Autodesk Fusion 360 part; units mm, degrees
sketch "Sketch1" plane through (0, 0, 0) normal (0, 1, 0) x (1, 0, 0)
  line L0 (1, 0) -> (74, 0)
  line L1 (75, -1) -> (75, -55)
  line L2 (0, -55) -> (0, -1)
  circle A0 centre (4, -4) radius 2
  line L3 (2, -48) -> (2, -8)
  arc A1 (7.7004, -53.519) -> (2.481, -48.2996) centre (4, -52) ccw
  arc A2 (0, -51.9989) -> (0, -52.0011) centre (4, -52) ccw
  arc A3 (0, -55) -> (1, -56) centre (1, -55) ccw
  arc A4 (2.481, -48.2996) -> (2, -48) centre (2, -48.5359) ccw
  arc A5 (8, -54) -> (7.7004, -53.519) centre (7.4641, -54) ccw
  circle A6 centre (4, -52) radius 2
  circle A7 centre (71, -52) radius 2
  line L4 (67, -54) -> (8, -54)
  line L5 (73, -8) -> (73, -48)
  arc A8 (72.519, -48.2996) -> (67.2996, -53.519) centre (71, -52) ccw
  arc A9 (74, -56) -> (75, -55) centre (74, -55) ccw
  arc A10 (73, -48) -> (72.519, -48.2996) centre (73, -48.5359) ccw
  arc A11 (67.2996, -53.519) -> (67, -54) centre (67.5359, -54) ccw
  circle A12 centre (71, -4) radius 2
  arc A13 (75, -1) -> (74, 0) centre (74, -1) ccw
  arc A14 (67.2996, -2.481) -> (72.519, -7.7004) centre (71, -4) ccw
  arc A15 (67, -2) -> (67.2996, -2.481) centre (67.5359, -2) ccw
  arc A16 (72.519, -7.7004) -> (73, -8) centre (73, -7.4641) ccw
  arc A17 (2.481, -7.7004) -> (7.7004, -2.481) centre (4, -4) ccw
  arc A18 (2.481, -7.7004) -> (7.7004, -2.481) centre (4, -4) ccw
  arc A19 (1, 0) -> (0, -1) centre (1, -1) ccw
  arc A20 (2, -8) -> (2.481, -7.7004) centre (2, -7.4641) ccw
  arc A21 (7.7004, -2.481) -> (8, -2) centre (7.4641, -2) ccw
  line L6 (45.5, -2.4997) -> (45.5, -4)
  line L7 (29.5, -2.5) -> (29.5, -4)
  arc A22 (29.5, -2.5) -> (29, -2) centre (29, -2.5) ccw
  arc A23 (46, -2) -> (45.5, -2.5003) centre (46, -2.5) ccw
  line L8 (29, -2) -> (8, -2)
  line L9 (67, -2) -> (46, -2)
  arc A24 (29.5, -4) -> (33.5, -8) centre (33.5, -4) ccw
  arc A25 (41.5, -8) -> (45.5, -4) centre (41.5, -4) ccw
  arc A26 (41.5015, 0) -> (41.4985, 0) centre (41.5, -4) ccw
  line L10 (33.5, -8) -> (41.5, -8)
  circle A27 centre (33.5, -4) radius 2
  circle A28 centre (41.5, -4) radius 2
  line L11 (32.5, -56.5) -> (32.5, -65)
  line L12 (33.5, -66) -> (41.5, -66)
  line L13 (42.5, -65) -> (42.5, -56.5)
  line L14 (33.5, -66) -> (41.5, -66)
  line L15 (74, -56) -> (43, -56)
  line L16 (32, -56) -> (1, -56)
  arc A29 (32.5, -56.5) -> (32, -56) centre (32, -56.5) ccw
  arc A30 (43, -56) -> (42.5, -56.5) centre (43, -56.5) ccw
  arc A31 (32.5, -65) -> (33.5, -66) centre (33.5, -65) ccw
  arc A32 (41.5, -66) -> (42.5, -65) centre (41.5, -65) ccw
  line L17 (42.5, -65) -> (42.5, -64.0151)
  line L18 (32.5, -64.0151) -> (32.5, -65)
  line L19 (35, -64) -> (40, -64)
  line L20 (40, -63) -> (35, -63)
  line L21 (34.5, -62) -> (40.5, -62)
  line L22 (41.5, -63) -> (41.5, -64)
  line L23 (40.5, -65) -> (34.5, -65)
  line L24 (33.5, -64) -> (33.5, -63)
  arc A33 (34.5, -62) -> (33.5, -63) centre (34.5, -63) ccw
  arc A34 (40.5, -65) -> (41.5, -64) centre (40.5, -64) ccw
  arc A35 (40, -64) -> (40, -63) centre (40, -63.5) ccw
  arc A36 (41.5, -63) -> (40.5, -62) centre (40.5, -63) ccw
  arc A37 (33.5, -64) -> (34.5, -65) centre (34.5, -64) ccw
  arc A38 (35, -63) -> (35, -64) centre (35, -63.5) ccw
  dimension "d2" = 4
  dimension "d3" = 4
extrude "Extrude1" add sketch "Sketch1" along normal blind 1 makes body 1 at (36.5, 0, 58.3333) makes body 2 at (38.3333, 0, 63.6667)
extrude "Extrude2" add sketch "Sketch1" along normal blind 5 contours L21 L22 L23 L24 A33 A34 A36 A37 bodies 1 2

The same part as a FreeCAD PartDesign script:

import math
import FreeCAD as App
import Part
import Sketcher
from FreeCAD import Vector
Q = App.Units.Quantity

doc = App.newDocument("Part")
body = doc.addObject("PartDesign::Body", "Body")
body.AllowCompound = True

sketch1 = body.newObject("Sketcher::SketchObject", "Sketch")
sketch1.AttachmentSupport = (doc.getObject("XZ_Plane"), [""])
sketch1.MapMode = "FlatFace"
sketch1.addGeometry([
    Part.LineSegment(Vector(41.4985, 0, 0), Vector(1, 0, 0)),
    Part.ArcOfCircle(Part.Circle(Vector(1, 1, 0), Vector(0, 0, 1), 1), math.radians(180), math.radians(270)),
    Part.LineSegment(Vector(0, 1, 0), Vector(0, 51.9989, 0)),
    Part.ArcOfCircle(Part.Circle(Vector(4, 52, 0), Vector(0, 0, 1), 4), math.radians(179.984244), math.radians(180.015756)),
    Part.LineSegment(Vector(0, 52.0011, 0), Vector(0, 55, 0)),
    Part.ArcOfCircle(Part.Circle(Vector(1, 55, 0), Vector(0, 0, 1), 1), math.radians(90), math.radians(180)),
    Part.LineSegment(Vector(1, 56, 0), Vector(32, 56, 0)),
    Part.ArcOfCircle(Part.Circle(Vector(32, 56.5, 0), Vector(0, 0, 1), 0.5), math.radians(-90), math.radians(0)),
    Part.LineSegment(Vector(32.5, 56.5, 0), Vector(32.5, 65, 0)),
    Part.ArcOfCircle(Part.Circle(Vector(33.5, 65, 0), Vector(0, 0, 1), 1), math.radians(90), math.radians(180)),
    Part.LineSegment(Vector(33.5, 66, 0), Vector(41.5, 66, 0)),
    Part.ArcOfCircle(Part.Circle(Vector(41.5, 65, 0), Vector(0, 0, 1), 1), math.radians(0), math.radians(90)),
    Part.LineSegment(Vector(42.5, 65, 0), Vector(42.5, 56.5, 0)),
    Part.ArcOfCircle(Part.Circle(Vector(43, 56.5, 0), Vector(0, 0, 1), 0.5), math.radians(180), math.radians(270)),
    Part.LineSegment(Vector(43, 56, 0), Vector(74, 56, 0)),
    Part.ArcOfCircle(Part.Circle(Vector(74, 55, 0), Vector(0, 0, 1), 1), math.radians(0), math.radians(90)),
    Part.LineSegment(Vector(75, 55, 0), Vector(75, 1, 0)),
    Part.ArcOfCircle(Part.Circle(Vector(74, 1, 0), Vector(0, 0, 1), 1), math.radians(-90), math.radians(0)),
    Part.LineSegment(Vector(74, 0, 0), Vector(41.5015, 0, 0)),
    Part.ArcOfCircle(Part.Circle(Vector(41.5, 4, 0), Vector(0, 0, 1), 4), math.radians(-90.021486), math.radians(-89.978514)),
    Part.Circle(Vector(4, 52, 0), Vector(0, 0, 1), 2),
    Part.ArcOfCircle(Part.Circle(Vector(34.5, 63, 0), Vector(0, 0, 1), 1), math.radians(180), math.radians(270)),
    Part.LineSegment(Vector(34.5, 62, 0), Vector(40.5, 62, 0)),
    Part.ArcOfCircle(Part.Circle(Vector(40.5, 63, 0), Vector(0, 0, 1), 1), math.radians(-90), math.radians(0)),
    Part.LineSegment(Vector(41.5, 63, 0), Vector(41.5, 64, 0)),
    Part.ArcOfCircle(Part.Circle(Vector(40.5, 64, 0), Vector(0, 0, 1), 1), math.radians(0), math.radians(90)),
    Part.LineSegment(Vector(40.5, 65, 0), Vector(34.5, 65, 0)),
    Part.ArcOfCircle(Part.Circle(Vector(34.5, 64, 0), Vector(0, 0, 1), 1), math.radians(90), math.radians(180)),
    Part.LineSegment(Vector(33.5, 64, 0), Vector(33.5, 63, 0)),
    Part.Circle(Vector(71, 52, 0), Vector(0, 0, 1), 2),
    Part.Circle(Vector(4, 4, 0), Vector(0, 0, 1), 2),
    Part.Circle(Vector(33.5, 4, 0), Vector(0, 0, 1), 2),
    Part.ArcOfCircle(Part.Circle(Vector(2, 48.5359, 0), Vector(0, 0, 1), 0.535909), math.radians(-90), math.radians(-26.163418)),
    Part.LineSegment(Vector(2, 48, 0), Vector(2, 8, 0)),
    Part.ArcOfCircle(Part.Circle(Vector(2, 7.4641, 0), Vector(0, 0, 1), 0.5359), math.radians(26.163418), math.radians(90)),
    Part.ArcOfCircle(Part.Circle(Vector(4, 4, 0), Vector(0, 0, 1), 4.00004), math.radians(-22.317962), math.radians(112.317962)),
    Part.ArcOfCircle(Part.Circle(Vector(7.4641, 2, 0), Vector(0, 0, 1), 0.535909), math.radians(0), math.radians(63.836582)),
    Part.LineSegment(Vector(8, 2, 0), Vector(29, 2, 0)),
    Part.ArcOfCircle(Part.Circle(Vector(29, 2.5, 0), Vector(0, 0, 1), 0.5), math.radians(-90), math.radians(0)),
    Part.LineSegment(Vector(29.5, 2.5, 0), Vector(29.5, 4, 0)),
    Part.ArcOfCircle(Part.Circle(Vector(33.5, 4, 0), Vector(0, 0, 1), 4), math.radians(90), math.radians(180)),
    Part.LineSegment(Vector(33.5, 8, 0), Vector(41.5, 8, 0)),
    Part.ArcOfCircle(Part.Circle(Vector(41.5, 4, 0), Vector(0, 0, 1), 4), math.radians(0), math.radians(90)),
    Part.LineSegment(Vector(45.5, 4, 0), Vector(45.5, 2.4997, 0)),
    Part.ArcOfCircle(Part.Circle(Vector(46, 2.5, 0), Vector(0, 0, 1), 0.5), math.radians(-179.965623), math.radians(-90)),
    Part.LineSegment(Vector(46, 2, 0), Vector(67, 2, 0)),
    Part.ArcOfCircle(Part.Circle(Vector(67.5359, 2, 0), Vector(0, 0, 1), 0.5359), math.radians(116.163418), math.radians(180)),
    Part.ArcOfCircle(Part.Circle(Vector(71, 4, 0), Vector(0, 0, 1), 4.00004), math.radians(67.682038), math.radians(202.317962)),
    Part.ArcOfCircle(Part.Circle(Vector(73, 7.4641, 0), Vector(0, 0, 1), 0.535909), math.radians(90), math.radians(153.836582)),
    Part.LineSegment(Vector(73, 8, 0), Vector(73, 48, 0)),
    Part.ArcOfCircle(Part.Circle(Vector(73, 48.5359, 0), Vector(0, 0, 1), 0.5359), math.radians(-153.836582), math.radians(-90)),
    Part.ArcOfCircle(Part.Circle(Vector(71, 52, 0), Vector(0, 0, 1), 4.00004), math.radians(157.682038), math.radians(292.317962)),
    Part.ArcOfCircle(Part.Circle(Vector(67.5359, 54, 0), Vector(0, 0, 1), 0.535909), math.radians(180), math.radians(243.836582)),
    Part.LineSegment(Vector(67, 54, 0), Vector(8, 54, 0)),
    Part.ArcOfCircle(Part.Circle(Vector(7.4641, 54, 0), Vector(0, 0, 1), 0.5359), math.radians(-63.836582), math.radians(0)),
    Part.ArcOfCircle(Part.Circle(Vector(4, 52, 0), Vector(0, 0, 1), 4.00004), math.radians(-112.317962), math.radians(22.317962)),
    Part.Circle(Vector(41.5, 4, 0), Vector(0, 0, 1), 2),
    Part.Circle(Vector(71, 4, 0), Vector(0, 0, 1), 2),
    Part.ArcOfCircle(Part.Circle(Vector(35, 63.5, 0), Vector(0, 0, 1), 0.5), math.radians(90), math.radians(270)),
    Part.LineSegment(Vector(35, 64, 0), Vector(40, 64, 0)),
    Part.ArcOfCircle(Part.Circle(Vector(40, 63.5, 0), Vector(0, 0, 1), 0.5), math.radians(-90), math.radians(90)),
    Part.LineSegment(Vector(40, 63, 0), Vector(35, 63, 0)),
], False)
sketch1.addConstraint([
    Sketcher.Constraint("Coincident", 0, 2, 1, 2),
    Sketcher.Constraint("Coincident", 1, 1, 2, 1),
    Sketcher.Constraint("Coincident", 2, 2, 3, 2),
    Sketcher.Constraint("Coincident", 3, 1, 4, 1),
    Sketcher.Constraint("Coincident", 4, 2, 5, 2),
    Sketcher.Constraint("Coincident", 5, 1, 6, 1),
    Sketcher.Constraint("Coincident", 6, 2, 7, 1),
    Sketcher.Constraint("Coincident", 7, 2, 8, 1),
    Sketcher.Constraint("Coincident", 8, 2, 9, 2),
    Sketcher.Constraint("Coincident", 9, 1, 10, 1),
    Sketcher.Constraint("Coincident", 10, 2, 11, 2),
    Sketcher.Constraint("Coincident", 11, 1, 12, 1),
    Sketcher.Constraint("Coincident", 12, 2, 13, 1),
    Sketcher.Constraint("Coincident", 13, 2, 14, 1),
    Sketcher.Constraint("Coincident", 14, 2, 15, 2),
    Sketcher.Constraint("Coincident", 15, 1, 16, 1),
    Sketcher.Constraint("Coincident", 16, 2, 17, 2),
    Sketcher.Constraint("Coincident", 17, 1, 18, 1),
    Sketcher.Constraint("Coincident", 18, 2, 19, 2),
    Sketcher.Constraint("Coincident", 19, 1, 0, 1),
    Sketcher.Constraint("Coincident", 21, 2, 22, 1),
    Sketcher.Constraint("Coincident", 22, 2, 23, 1),
    Sketcher.Constraint("Coincident", 23, 2, 24, 1),
    Sketcher.Constraint("Coincident", 24, 2, 25, 1),
    Sketcher.Constraint("Coincident", 25, 2, 26, 1),
    Sketcher.Constraint("Coincident", 26, 2, 27, 1),
    Sketcher.Constraint("Coincident", 27, 2, 28, 1),
    Sketcher.Constraint("Coincident", 28, 2, 21, 1),
    Sketcher.Constraint("Coincident", 32, 1, 33, 1),
    Sketcher.Constraint("Coincident", 33, 2, 34, 2),
    Sketcher.Constraint("Coincident", 34, 1, 35, 2),
    Sketcher.Constraint("Coincident", 35, 1, 36, 2),
    Sketcher.Constraint("Coincident", 36, 1, 37, 1),
    Sketcher.Constraint("Coincident", 37, 2, 38, 1),
    Sketcher.Constraint("Coincident", 38, 2, 39, 1),
    Sketcher.Constraint("Coincident", 39, 2, 40, 2),
    Sketcher.Constraint("Coincident", 40, 1, 41, 1),
    Sketcher.Constraint("Coincident", 41, 2, 42, 2),
    Sketcher.Constraint("Coincident", 42, 1, 43, 1),
    Sketcher.Constraint("Coincident", 43, 2, 44, 1),
    Sketcher.Constraint("Coincident", 44, 2, 45, 1),
    Sketcher.Constraint("Coincident", 45, 2, 46, 2),
    Sketcher.Constraint("Coincident", 46, 1, 47, 2),
    Sketcher.Constraint("Coincident", 47, 1, 48, 2),
    Sketcher.Constraint("Coincident", 48, 1, 49, 1),
    Sketcher.Constraint("Coincident", 49, 2, 50, 2),
    Sketcher.Constraint("Coincident", 50, 1, 51, 2),
    Sketcher.Constraint("Coincident", 51, 1, 52, 2),
    Sketcher.Constraint("Coincident", 52, 1, 53, 1),
    Sketcher.Constraint("Coincident", 53, 2, 54, 2),
    Sketcher.Constraint("Coincident", 54, 1, 55, 2),
    Sketcher.Constraint("Coincident", 55, 1, 32, 2),
    Sketcher.Constraint("Coincident", 58, 1, 59, 1),
    Sketcher.Constraint("Coincident", 59, 2, 60, 2),
    Sketcher.Constraint("Coincident", 60, 1, 61, 1),
    Sketcher.Constraint("Coincident", 61, 2, 58, 2),
    Sketcher.Constraint("Horizontal", 0),
    Sketcher.Constraint("Vertical", 2),
    Sketcher.Constraint("Vertical", 4),
    Sketcher.Constraint("Horizontal", 6),
    Sketcher.Constraint("Vertical", 8),
    Sketcher.Constraint("Horizontal", 10),
    Sketcher.Constraint("Vertical", 12),
    Sketcher.Constraint("Horizontal", 14),
    Sketcher.Constraint("Vertical", 16),
    Sketcher.Constraint("Horizontal", 18),
    Sketcher.Constraint("Horizontal", 22),
    Sketcher.Constraint("Vertical", 24),
    Sketcher.Constraint("Horizontal", 26),
    Sketcher.Constraint("Vertical", 28),
    Sketcher.Constraint("Vertical", 33),
    Sketcher.Constraint("Horizontal", 37),
    Sketcher.Constraint("Vertical", 39),
    Sketcher.Constraint("Horizontal", 41),
    Sketcher.Constraint("Vertical", 43),
    Sketcher.Constraint("Horizontal", 45),
    Sketcher.Constraint("Vertical", 49),
    Sketcher.Constraint("Horizontal", 53),
    Sketcher.Constraint("Horizontal", 59),
    Sketcher.Constraint("Horizontal", 61),
    Sketcher.Constraint("Coincident", 20, 3, 3, 3),
    Sketcher.Constraint("Coincident", 35, 3, 30, 3),
    Sketcher.Constraint("Coincident", 40, 3, 31, 3),
    Sketcher.Constraint("Coincident", 42, 3, 19, 3),
    Sketcher.Constraint("Coincident", 51, 3, 29, 3),
    Sketcher.Constraint("Coincident", 55, 3, 3, 3),
    Sketcher.Constraint("Coincident", 56, 3, 19, 3),
    Sketcher.Constraint("Coincident", 57, 3, 47, 3),
    Sketcher.Constraint("PointOnObject", 0, 2, -1),
    Sketcher.Constraint("PointOnObject", 1, 1, -2),
    Sketcher.Constraint("Diameter", 20, Q("4 mm")),
    Sketcher.Constraint("Diameter", 29, Q("4 mm")),
    Sketcher.Constraint("Diameter", 30, Q("4 mm")),
    Sketcher.Constraint("Diameter", 31, Q("4 mm")),
    Sketcher.Constraint("Diameter", 56, Q("4 mm")),
    Sketcher.Constraint("Diameter", 57, Q("4 mm")),
    Sketcher.Constraint("Radius", 3, Q("4 mm")),
    Sketcher.Constraint("Radius", 19, Q("4 mm")),
    Sketcher.Constraint("Radius", 35, Q("4 mm")),
    Sketcher.Constraint("Radius", 40, Q("4 mm")),
    Sketcher.Constraint("Radius", 42, Q("4 mm")),
    Sketcher.Constraint("Radius", 47, Q("4 mm")),
    Sketcher.Constraint("Radius", 51, Q("4 mm")),
    Sketcher.Constraint("Radius", 55, Q("4 mm")),
    Sketcher.Constraint("DistanceX", -1, 1, 30, 3, Q("4 mm")),
    Sketcher.Constraint("DistanceY", -1, 1, 30, 3, Q("4 mm")),
    Sketcher.Constraint("DistanceY", -1, 1, 47, 3, Q("4 mm")),
    Sketcher.Constraint("DistanceY", -1, 1, 39, 2, Q("4 mm")),
    Sketcher.Constraint("DistanceY", -1, 1, 42, 1, Q("4 mm")),
    Sketcher.Constraint("Radius", 1, Q("1 mm")),
    Sketcher.Constraint("Radius", 5, Q("1 mm")),
    Sketcher.Constraint("Radius", 9, Q("1 mm")),
    Sketcher.Constraint("Radius", 11, Q("1 mm")),
    Sketcher.Constraint("Radius", 15, Q("1 mm")),
    Sketcher.Constraint("Radius", 17, Q("1 mm")),
    Sketcher.Constraint("Radius", 21, Q("1 mm")),
    Sketcher.Constraint("Radius", 23, Q("1 mm")),
    Sketcher.Constraint("Radius", 25, Q("1 mm")),
    Sketcher.Constraint("Radius", 27, Q("1 mm")),
    Sketcher.Constraint("Radius", 7, Q("0.5 mm")),
    Sketcher.Constraint("Radius", 13, Q("0.5 mm")),
    Sketcher.Constraint("Radius", 38, Q("0.5 mm")),
    Sketcher.Constraint("Radius", 44, Q("0.5 mm")),
    Sketcher.Constraint("Radius", 58, Q("0.5 mm")),
    Sketcher.Constraint("DistanceX", 6, 1, 6, 2, Q("31 mm")),
    Sketcher.Constraint("DistanceX", 10, 1, 10, 2, Q("8 mm")),
    Sketcher.Constraint("DistanceX", 14, 1, 14, 2, Q("31 mm")),
    Sketcher.Constraint("DistanceX", 22, 1, 22, 2, Q("6 mm")),
    Sketcher.Constraint("DistanceX", 26, 2, 26, 1, Q("6 mm")),
    Sketcher.Constraint("DistanceX", 37, 1, 37, 2, Q("21 mm")),
    Sketcher.Constraint("DistanceX", 41, 1, 41, 2, Q("8 mm")),
    Sketcher.Constraint("DistanceX", 45, 1, 45, 2, Q("21 mm")),
    Sketcher.Constraint("DistanceX", 53, 2, 53, 1, Q("59 mm")),
    Sketcher.Constraint("DistanceX", 59, 1, 59, 2, Q("5 mm")),
    Sketcher.Constraint("DistanceX", 61, 2, 61, 1, Q("5 mm")),
    Sketcher.Constraint("DistanceY", 16, 2, 16, 1, Q("54 mm")),
    Sketcher.Constraint("DistanceY", 24, 1, 24, 2, Q("1 mm")),
    Sketcher.Constraint("DistanceY", 28, 2, 28, 1, Q("1 mm")),
    Sketcher.Constraint("DistanceY", 33, 2, 33, 1, Q("40 mm")),
    Sketcher.Constraint("DistanceY", 49, 1, 49, 2, Q("40 mm")),
    Sketcher.Constraint("DistanceY", 8, 1, 8, 2, Q("8.5 mm")),
    Sketcher.Constraint("DistanceY", 12, 2, 12, 1, Q("8.5 mm")),
    Sketcher.Constraint("DistanceY", 39, 1, 39, 2, Q("1.5 mm")),
    Sketcher.Constraint("DistanceY", -1, 1, 3, 3, Q("52 mm")),
    Sketcher.Constraint("DistanceY", -1, 1, 5, 3, Q("55 mm")),
    Sketcher.Constraint("DistanceX", -1, 1, 7, 3, Q("32 mm")),
    Sketcher.Constraint("DistanceY", -1, 1, 9, 3, Q("65 mm")),
    Sketcher.Constraint("DistanceX", -1, 1, 13, 3, Q("43 mm")),
    Sketcher.Constraint("DistanceX", -1, 1, 15, 3, Q("74 mm")),
    Sketcher.Constraint("DistanceY", -1, 1, 15, 3, Q("55 mm")),
    Sketcher.Constraint("DistanceY", -1, 1, 21, 3, Q("63 mm")),
    Sketcher.Constraint("DistanceY", -1, 1, 25, 3, Q("64 mm")),
    Sketcher.Constraint("DistanceX", -1, 1, 29, 3, Q("71 mm")),
    Sketcher.Constraint("DistanceY", -1, 1, 29, 3, Q("52 mm")),
    Sketcher.Constraint("DistanceX", -1, 1, 32, 3, Q("2 mm")),
    Sketcher.Constraint("DistanceX", -1, 1, 34, 3, Q("2 mm")),
    Sketcher.Constraint("DistanceY", -1, 1, 36, 3, Q("2 mm")),
    Sketcher.Constraint("DistanceX", -1, 1, 38, 3, Q("29 mm")),
    Sketcher.Constraint("DistanceX", -1, 1, 44, 3, Q("46 mm")),
    Sketcher.Constraint("DistanceY", -1, 1, 46, 3, Q("2 mm")),
    Sketcher.Constraint("DistanceX", -1, 1, 47, 3, Q("71 mm")),
    Sketcher.Constraint("DistanceX", -1, 1, 48, 3, Q("73 mm")),
    Sketcher.Constraint("DistanceX", -1, 1, 50, 3, Q("73 mm")),
    Sketcher.Constraint("DistanceY", -1, 1, 52, 3, Q("54 mm")),
    Sketcher.Constraint("DistanceY", -1, 1, 54, 3, Q("54 mm")),
    Sketcher.Constraint("DistanceX", -1, 1, 58, 3, Q("35 mm")),
    Sketcher.Constraint("DistanceX", -1, 1, 60, 3, Q("40 mm")),
    Sketcher.Constraint("DistanceX", -1, 1, 0, 2, Q("1 mm")),
    Sketcher.Constraint("DistanceY", -1, 1, 1, 1, Q("1 mm")),
    Sketcher.Constraint("DistanceY", -1, 1, 4, 2, Q("55 mm")),
    Sketcher.Constraint("DistanceX", -1, 1, 5, 1, Q("1 mm")),
    Sketcher.Constraint("DistanceY", -1, 1, 8, 2, Q("65 mm")),
    Sketcher.Constraint("DistanceY", -1, 1, 11, 1, Q("65 mm")),
    Sketcher.Constraint("DistanceX", -1, 1, 13, 2, Q("43 mm")),
    Sketcher.Constraint("DistanceY", -1, 1, 15, 1, Q("55 mm")),
    Sketcher.Constraint("DistanceX", -1, 1, 17, 1, Q("74 mm")),
    Sketcher.Constraint("DistanceY", -1, 1, 23, 2, Q("63 mm")),
    Sketcher.Constraint("DistanceY", -1, 1, 27, 2, Q("64 mm")),
    Sketcher.Constraint("DistanceX", -1, 1, 32, 1, Q("2 mm")),
    Sketcher.Constraint("DistanceY", -1, 1, 32, 1, Q("48 mm")),
    Sketcher.Constraint("DistanceX", -1, 1, 36, 1, Q("8 mm")),
    Sketcher.Constraint("DistanceY", -1, 1, 36, 1, Q("2 mm")),
    Sketcher.Constraint("DistanceX", -1, 1, 44, 2, Q("46 mm")),
    Sketcher.Constraint("DistanceY", -1, 1, 44, 2, Q("2 mm")),
    Sketcher.Constraint("DistanceX", -1, 1, 48, 1, Q("73 mm")),
    Sketcher.Constraint("DistanceY", -1, 1, 48, 1, Q("8 mm")),
    Sketcher.Constraint("DistanceX", -1, 1, 52, 1, Q("67 mm")),
    Sketcher.Constraint("DistanceY", -1, 1, 52, 1, Q("54 mm")),
    Sketcher.Constraint("DistanceX", -1, 1, 58, 1, Q("35 mm")),
    Sketcher.Constraint("DistanceY", -1, 1, 58, 1, Q("64 mm")),
    Sketcher.Constraint("DistanceX", -1, 1, 60, 1, Q("40 mm")),
    Sketcher.Constraint("Radius", 32, Q("0.536 mm")),
    Sketcher.Constraint("Radius", 34, Q("0.536 mm")),
    Sketcher.Constraint("Radius", 36, Q("0.536 mm")),
    Sketcher.Constraint("Radius", 46, Q("0.536 mm")),
    Sketcher.Constraint("Radius", 48, Q("0.536 mm")),
    Sketcher.Constraint("Radius", 50, Q("0.536 mm")),
    Sketcher.Constraint("Radius", 52, Q("0.536 mm")),
    Sketcher.Constraint("Radius", 54, Q("0.536 mm")),
    Sketcher.Constraint("DistanceX", -1, 1, 21, 3, Q("34.5 mm")),
    Sketcher.Constraint("DistanceX", -1, 1, 23, 3, Q("40.5 mm")),
    Sketcher.Constraint("DistanceX", -1, 1, 9, 1, Q("33.5 mm")),
    Sketcher.Constraint("DistanceX", -1, 1, 21, 2, Q("34.5 mm")),
    Sketcher.Constraint("DistanceX", -1, 1, 25, 2, Q("40.5 mm")),
    Sketcher.Constraint("DistanceX", -1, 1, 40, 1, Q("33.5 mm")),
    Sketcher.Constraint("DistanceY", 2, 1, 2, 2, Q("50.999 mm")),
    Sketcher.Constraint("DistanceY", 4, 1, 4, 2, Q("2.999 mm")),
    Sketcher.Constraint("DistanceX", 0, 2, 0, 1, Q("40.4985 mm")),
    Sketcher.Constraint("DistanceX", 18, 2, 18, 1, Q("32.4985 mm")),
    Sketcher.Constraint("DistanceY", 43, 2, 43, 1, Q("1.5003 mm")),
])
pad1 = body.newObject("PartDesign::Pad", "Pad")
pad1.Profile = sketch1
pad1.Length = 1
pad1.Reversed = True

sketch2 = body.newObject("Sketcher::SketchObject", "Sketch001")
sketch2.AttachmentSupport = (doc.getObject("XZ_Plane"), [""])
sketch2.MapMode = "FlatFace"
sketch2.addGeometry([
    Part.LineSegment(Vector(40.5, 62, 0), Vector(34.5, 62, 0)),
    Part.ArcOfCircle(Part.Circle(Vector(34.5, 63, 0), Vector(0, 0, 1), 1), math.radians(180), math.radians(270)),
    Part.LineSegment(Vector(33.5, 63, 0), Vector(33.5, 64, 0)),
    Part.ArcOfCircle(Part.Circle(Vector(34.5, 64, 0), Vector(0, 0, 1), 1), math.radians(90), math.radians(180)),
    Part.LineSegment(Vector(34.5, 65, 0), Vector(40.5, 65, 0)),
    Part.ArcOfCircle(Part.Circle(Vector(40.5, 64, 0), Vector(0, 0, 1), 1), math.radians(0), math.radians(90)),
    Part.LineSegment(Vector(41.5, 64, 0), Vector(41.5, 63, 0)),
    Part.ArcOfCircle(Part.Circle(Vector(40.5, 63, 0), Vector(0, 0, 1), 1), math.radians(-90), math.radians(0)),
    Part.LineSegment(Vector(40, 64, 0), Vector(35, 64, 0)),
    Part.ArcOfCircle(Part.Circle(Vector(35, 63.5, 0), Vector(0, 0, 1), 0.5), math.radians(90), math.radians(270)),
    Part.LineSegment(Vector(35, 63, 0), Vector(40, 63, 0)),
    Part.ArcOfCircle(Part.Circle(Vector(40, 63.5, 0), Vector(0, 0, 1), 0.5), math.radians(-90), math.radians(90)),
], False)
sketch2.addConstraint([
    Sketcher.Constraint("Tangent", 0, 2, 1, 2),
    Sketcher.Constraint("Tangent", 1, 1, 2, 1),
    Sketcher.Constraint("Tangent", 2, 2, 3, 2),
    Sketcher.Constraint("Tangent", 3, 1, 4, 1),
    Sketcher.Constraint("Tangent", 4, 2, 5, 2),
    Sketcher.Constraint("Tangent", 5, 1, 6, 1),
    Sketcher.Constraint("Tangent", 6, 2, 7, 2),
    Sketcher.Constraint("Tangent", 7, 1, 0, 1),
    Sketcher.Constraint("Tangent", 8, 2, 9, 1),
    Sketcher.Constraint("Tangent", 9, 2, 10, 1),
    Sketcher.Constraint("Tangent", 10, 2, 11, 1),
    Sketcher.Constraint("Tangent", 11, 2, 8, 1),
    Sketcher.Constraint("Horizontal", 0),
    Sketcher.Constraint("Vertical", 2),
    Sketcher.Constraint("Horizontal", 4),
    Sketcher.Constraint("Vertical", 6),
    Sketcher.Constraint("Horizontal", 8),
    Sketcher.Constraint("Horizontal", 10),
    Sketcher.Constraint("Equal", 1, 3),
    Sketcher.Constraint("Equal", 3, 5),
    Sketcher.Constraint("Equal", 5, 7),
    Sketcher.Constraint("Horizontal", 5, 1, 8, 2),
    Sketcher.Constraint("Horizontal", 6, 2, 9, 2),
    Sketcher.Constraint("Radius", 1, Q("1 mm")),
    Sketcher.Constraint("Radius", 9, Q("0.5 mm")),
    Sketcher.Constraint("DistanceX", 0, 2, 0, 1, Q("6 mm")),
    Sketcher.Constraint("DistanceX", 8, 2, 8, 1, Q("5 mm")),
    Sketcher.Constraint("DistanceY", -1, 1, 1, 3, Q("63 mm")),
    Sketcher.Constraint("DistanceX", -1, 1, 9, 3, Q("35 mm")),
    Sketcher.Constraint("DistanceX", -1, 1, 1, 3, Q("34.5 mm")),
])
pad2 = body.newObject("PartDesign::Pad", "Pad001")
pad2.Profile = sketch2
pad2.Length = 5
pad2.Reversed = True

doc.recompute()
